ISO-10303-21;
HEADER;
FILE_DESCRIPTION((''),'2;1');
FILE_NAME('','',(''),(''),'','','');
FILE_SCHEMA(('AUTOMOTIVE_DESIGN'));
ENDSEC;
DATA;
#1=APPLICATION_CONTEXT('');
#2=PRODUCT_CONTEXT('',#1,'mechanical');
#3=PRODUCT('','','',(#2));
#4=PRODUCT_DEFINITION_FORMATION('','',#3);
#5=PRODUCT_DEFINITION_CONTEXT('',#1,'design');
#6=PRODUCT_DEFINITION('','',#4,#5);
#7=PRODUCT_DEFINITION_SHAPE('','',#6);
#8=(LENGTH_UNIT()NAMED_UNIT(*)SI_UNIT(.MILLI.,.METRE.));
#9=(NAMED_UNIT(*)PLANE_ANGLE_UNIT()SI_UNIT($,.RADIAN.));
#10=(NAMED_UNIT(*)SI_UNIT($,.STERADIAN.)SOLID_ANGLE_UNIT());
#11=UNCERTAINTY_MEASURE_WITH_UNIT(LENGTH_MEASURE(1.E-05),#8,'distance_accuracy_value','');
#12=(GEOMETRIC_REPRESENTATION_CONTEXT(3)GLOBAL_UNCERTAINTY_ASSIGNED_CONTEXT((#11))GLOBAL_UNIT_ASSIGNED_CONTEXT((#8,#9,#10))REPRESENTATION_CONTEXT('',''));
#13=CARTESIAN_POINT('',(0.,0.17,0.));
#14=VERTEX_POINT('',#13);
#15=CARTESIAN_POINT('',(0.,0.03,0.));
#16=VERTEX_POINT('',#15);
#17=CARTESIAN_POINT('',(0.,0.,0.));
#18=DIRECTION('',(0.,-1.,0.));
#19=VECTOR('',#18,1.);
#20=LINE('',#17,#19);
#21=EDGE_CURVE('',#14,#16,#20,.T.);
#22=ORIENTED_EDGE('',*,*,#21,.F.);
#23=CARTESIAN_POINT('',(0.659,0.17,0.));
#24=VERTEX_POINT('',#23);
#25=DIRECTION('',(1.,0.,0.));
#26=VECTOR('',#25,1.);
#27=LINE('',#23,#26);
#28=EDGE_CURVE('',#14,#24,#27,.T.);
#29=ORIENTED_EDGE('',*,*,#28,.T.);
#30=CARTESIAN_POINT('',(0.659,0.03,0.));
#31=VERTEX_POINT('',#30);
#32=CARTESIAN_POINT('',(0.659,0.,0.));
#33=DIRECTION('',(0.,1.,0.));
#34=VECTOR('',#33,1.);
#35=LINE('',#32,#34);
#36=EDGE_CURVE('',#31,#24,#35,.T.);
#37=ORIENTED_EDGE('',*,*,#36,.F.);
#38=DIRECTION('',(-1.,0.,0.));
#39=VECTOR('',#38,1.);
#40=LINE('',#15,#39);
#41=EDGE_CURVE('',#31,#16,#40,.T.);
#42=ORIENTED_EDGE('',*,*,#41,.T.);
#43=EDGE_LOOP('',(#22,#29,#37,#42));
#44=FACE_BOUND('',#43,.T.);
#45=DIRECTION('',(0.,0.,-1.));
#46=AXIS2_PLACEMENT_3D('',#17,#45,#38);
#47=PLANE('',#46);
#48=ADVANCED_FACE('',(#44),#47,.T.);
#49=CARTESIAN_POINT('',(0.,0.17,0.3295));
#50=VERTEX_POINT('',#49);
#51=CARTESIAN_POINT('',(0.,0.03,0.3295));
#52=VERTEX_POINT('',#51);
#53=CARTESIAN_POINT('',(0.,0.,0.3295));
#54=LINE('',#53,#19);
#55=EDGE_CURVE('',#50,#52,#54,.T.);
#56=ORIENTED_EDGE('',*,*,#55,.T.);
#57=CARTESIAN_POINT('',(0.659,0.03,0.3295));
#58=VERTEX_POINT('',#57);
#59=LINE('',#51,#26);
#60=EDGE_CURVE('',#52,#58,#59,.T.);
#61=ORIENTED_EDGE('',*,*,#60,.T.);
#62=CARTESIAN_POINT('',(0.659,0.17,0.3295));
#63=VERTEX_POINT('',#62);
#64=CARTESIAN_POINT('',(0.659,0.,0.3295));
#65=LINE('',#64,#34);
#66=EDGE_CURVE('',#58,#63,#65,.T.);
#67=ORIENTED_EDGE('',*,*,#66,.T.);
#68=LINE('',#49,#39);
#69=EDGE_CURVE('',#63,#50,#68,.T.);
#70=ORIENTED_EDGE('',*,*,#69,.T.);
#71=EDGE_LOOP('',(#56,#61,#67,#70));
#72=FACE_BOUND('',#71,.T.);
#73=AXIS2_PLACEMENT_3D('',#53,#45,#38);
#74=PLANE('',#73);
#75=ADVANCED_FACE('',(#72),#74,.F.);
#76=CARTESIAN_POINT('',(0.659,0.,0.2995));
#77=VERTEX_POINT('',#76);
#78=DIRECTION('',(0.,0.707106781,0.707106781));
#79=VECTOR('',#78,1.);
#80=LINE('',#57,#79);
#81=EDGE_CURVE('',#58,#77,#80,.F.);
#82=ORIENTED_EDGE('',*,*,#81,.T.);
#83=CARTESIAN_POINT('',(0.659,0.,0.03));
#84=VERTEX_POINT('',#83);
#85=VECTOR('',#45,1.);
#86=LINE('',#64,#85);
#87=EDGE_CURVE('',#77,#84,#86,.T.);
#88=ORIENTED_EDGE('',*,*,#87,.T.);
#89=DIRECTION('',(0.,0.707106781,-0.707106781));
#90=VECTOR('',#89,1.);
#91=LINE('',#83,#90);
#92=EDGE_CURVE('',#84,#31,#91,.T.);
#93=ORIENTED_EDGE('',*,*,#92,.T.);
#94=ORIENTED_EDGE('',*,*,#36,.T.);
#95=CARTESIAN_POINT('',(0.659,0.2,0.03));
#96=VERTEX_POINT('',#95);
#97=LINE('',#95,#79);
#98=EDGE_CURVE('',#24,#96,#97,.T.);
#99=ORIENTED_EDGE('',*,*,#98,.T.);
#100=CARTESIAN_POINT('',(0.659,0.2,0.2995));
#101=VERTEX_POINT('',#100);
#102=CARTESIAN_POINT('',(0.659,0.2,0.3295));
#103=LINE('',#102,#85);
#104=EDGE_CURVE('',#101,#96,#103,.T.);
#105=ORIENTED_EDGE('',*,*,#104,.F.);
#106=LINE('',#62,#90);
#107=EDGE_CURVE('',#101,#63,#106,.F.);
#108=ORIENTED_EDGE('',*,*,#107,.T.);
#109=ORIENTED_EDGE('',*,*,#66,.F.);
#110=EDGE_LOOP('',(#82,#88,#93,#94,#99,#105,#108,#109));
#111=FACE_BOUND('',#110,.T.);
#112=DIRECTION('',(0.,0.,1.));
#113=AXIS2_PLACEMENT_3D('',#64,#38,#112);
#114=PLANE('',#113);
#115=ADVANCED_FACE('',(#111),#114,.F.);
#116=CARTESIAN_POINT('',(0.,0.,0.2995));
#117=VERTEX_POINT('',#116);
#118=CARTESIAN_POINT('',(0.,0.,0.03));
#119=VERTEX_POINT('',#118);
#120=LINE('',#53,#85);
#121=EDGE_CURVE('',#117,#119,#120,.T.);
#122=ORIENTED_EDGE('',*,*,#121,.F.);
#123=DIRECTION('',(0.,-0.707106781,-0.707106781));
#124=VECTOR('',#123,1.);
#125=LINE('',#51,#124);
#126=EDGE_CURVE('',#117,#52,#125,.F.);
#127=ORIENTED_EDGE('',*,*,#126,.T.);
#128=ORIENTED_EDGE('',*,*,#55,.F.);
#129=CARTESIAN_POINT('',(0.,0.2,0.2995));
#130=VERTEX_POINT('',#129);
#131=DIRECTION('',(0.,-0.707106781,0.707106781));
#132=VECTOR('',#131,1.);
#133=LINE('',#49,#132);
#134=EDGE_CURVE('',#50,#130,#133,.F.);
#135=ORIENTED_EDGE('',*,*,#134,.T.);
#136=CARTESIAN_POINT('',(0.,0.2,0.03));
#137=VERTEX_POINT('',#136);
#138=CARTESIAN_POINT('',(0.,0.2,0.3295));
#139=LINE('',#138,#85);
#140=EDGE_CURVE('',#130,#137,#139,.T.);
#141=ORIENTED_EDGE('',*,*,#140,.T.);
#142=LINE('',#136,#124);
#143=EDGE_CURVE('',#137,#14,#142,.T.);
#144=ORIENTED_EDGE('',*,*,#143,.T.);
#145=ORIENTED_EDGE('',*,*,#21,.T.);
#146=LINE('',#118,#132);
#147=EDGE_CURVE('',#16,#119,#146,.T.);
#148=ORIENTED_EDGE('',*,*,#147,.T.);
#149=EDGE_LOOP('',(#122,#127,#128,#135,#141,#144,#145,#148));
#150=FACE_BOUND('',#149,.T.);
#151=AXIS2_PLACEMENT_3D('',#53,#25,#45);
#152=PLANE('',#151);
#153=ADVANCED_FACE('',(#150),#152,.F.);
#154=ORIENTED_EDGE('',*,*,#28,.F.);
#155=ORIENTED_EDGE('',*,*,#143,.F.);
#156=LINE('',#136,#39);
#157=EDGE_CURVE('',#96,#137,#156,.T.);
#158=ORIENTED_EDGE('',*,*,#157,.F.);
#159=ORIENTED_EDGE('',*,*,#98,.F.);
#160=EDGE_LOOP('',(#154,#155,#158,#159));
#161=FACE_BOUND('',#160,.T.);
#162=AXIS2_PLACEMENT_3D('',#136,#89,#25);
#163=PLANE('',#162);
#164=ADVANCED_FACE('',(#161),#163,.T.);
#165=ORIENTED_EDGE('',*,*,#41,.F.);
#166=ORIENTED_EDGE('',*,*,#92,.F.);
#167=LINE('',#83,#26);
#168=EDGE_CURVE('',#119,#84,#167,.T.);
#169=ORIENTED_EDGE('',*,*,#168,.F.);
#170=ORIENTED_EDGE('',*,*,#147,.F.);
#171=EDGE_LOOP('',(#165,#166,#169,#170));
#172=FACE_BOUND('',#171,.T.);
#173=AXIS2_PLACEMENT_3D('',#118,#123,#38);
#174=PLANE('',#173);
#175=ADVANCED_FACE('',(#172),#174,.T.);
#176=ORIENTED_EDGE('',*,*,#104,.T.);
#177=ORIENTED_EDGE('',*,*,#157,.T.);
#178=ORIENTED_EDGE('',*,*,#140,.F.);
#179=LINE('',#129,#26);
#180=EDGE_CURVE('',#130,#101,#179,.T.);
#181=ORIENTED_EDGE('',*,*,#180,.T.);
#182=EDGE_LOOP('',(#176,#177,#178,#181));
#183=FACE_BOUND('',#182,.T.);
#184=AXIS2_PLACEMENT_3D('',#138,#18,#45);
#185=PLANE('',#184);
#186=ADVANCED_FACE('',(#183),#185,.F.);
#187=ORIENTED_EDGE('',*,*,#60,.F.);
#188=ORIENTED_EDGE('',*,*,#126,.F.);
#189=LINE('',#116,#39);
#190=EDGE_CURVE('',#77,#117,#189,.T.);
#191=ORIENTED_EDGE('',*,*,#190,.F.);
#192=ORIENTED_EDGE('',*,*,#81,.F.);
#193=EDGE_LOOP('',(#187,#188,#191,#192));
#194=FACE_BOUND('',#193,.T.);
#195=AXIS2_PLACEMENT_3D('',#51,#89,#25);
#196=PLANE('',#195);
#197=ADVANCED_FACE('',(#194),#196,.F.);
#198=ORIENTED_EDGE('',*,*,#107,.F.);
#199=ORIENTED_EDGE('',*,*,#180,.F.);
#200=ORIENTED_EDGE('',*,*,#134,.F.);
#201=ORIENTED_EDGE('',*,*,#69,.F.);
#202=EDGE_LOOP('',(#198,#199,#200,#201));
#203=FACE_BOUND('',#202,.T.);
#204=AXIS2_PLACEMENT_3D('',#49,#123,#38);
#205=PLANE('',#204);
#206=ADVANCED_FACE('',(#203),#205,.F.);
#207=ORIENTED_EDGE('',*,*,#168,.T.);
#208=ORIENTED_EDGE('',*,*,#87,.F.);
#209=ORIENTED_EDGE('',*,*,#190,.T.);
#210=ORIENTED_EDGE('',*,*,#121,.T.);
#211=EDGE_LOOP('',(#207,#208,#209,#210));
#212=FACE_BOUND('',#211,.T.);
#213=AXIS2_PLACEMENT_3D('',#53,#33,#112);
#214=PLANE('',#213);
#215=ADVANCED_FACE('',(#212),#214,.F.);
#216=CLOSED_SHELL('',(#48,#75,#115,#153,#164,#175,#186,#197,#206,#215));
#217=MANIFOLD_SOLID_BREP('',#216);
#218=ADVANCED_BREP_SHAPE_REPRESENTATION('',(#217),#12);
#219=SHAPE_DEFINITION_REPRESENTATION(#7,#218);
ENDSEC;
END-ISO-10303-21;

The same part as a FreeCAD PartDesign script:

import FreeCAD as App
import Part
import Sketcher


def edges_at(feature, points):
    """Names of the edges that pass closest to the given points."""
    edges = feature.Shape.Edges
    near = lambda p: min(range(len(edges)), key=lambda i: edges[i].distToShape(Part.Vertex(*p))[0])
    return sorted({f"Edge{near(p) + 1}" for p in points})


def add_polygon(sketch, points):
    """Adds a closed chain of lines whose ends are joined by coincident constraints."""
    first, n = sketch.GeometryCount, len(points)
    for a, b in zip(points, points[1:] + points[:1]):
        sketch.addGeometry(Part.LineSegment(App.Vector(*a, 0), App.Vector(*b, 0)), False)
    for i in range(n):
        sketch.addConstraint(Sketcher.Constraint("Coincident", first + i, 2, first + (i + 1) % n, 1))

doc = App.newDocument("Part")
params = doc.addObject("Spreadsheet::Sheet", "Params")
for row, (alias, value) in enumerate([
    ("sketch1_height", "0.2 mm"),
    ("pad1_length", "0.3295 mm"),
    ("chamfer_size", "0.03 mm"),
], start=1):
    params.set(f"A{row}", alias)
    params.set(f"B{row}", "=" + value)
    params.setAlias(f"B{row}", alias)

body = doc.addObject("PartDesign::Body", "Body")

sketch1 = body.newObject("Sketcher::SketchObject", "Sketch")
sketch1.AttachmentSupport = (doc.getObject("XY_Plane"), [""])
sketch1.MapMode = "FlatFace"
add_polygon(sketch1, [(0, 0.2), (0, 0), (0.659, 0), (0.659, 0.2)])
sketch1.addConstraint([
    Sketcher.Constraint("Vertical", 0),
    Sketcher.Constraint("Horizontal", 1),
    Sketcher.Constraint("Vertical", 2),
    Sketcher.Constraint("Horizontal", 3),
    Sketcher.Constraint("Coincident", 0, 2, -1, 1),
    Sketcher.Constraint("DistanceY", 0, 2, 0, 1, 0.2),
    Sketcher.Constraint("DistanceX", 1, 1, 1, 2, 0.659),
])
sketch1.setExpression("Constraints[9]", "Params.sketch1_height")
pad1 = body.newObject("PartDesign::Pad", "Pad")
pad1.Profile = sketch1
pad1.setExpression("Length", "Params.pad1_length")
doc.recompute()

chamfer = body.newObject("PartDesign::Chamfer", "Chamfer")
chamfer.Base = (pad1, edges_at(pad1, [
    (0.33, 0.2, 0.33),
    (0.33, 0.2, 0),
    (0.33, 0, 0),
    (0.33, 0, 0.33),
]))
chamfer.setExpression("Size", "Params.chamfer_size")

doc.recompute()
